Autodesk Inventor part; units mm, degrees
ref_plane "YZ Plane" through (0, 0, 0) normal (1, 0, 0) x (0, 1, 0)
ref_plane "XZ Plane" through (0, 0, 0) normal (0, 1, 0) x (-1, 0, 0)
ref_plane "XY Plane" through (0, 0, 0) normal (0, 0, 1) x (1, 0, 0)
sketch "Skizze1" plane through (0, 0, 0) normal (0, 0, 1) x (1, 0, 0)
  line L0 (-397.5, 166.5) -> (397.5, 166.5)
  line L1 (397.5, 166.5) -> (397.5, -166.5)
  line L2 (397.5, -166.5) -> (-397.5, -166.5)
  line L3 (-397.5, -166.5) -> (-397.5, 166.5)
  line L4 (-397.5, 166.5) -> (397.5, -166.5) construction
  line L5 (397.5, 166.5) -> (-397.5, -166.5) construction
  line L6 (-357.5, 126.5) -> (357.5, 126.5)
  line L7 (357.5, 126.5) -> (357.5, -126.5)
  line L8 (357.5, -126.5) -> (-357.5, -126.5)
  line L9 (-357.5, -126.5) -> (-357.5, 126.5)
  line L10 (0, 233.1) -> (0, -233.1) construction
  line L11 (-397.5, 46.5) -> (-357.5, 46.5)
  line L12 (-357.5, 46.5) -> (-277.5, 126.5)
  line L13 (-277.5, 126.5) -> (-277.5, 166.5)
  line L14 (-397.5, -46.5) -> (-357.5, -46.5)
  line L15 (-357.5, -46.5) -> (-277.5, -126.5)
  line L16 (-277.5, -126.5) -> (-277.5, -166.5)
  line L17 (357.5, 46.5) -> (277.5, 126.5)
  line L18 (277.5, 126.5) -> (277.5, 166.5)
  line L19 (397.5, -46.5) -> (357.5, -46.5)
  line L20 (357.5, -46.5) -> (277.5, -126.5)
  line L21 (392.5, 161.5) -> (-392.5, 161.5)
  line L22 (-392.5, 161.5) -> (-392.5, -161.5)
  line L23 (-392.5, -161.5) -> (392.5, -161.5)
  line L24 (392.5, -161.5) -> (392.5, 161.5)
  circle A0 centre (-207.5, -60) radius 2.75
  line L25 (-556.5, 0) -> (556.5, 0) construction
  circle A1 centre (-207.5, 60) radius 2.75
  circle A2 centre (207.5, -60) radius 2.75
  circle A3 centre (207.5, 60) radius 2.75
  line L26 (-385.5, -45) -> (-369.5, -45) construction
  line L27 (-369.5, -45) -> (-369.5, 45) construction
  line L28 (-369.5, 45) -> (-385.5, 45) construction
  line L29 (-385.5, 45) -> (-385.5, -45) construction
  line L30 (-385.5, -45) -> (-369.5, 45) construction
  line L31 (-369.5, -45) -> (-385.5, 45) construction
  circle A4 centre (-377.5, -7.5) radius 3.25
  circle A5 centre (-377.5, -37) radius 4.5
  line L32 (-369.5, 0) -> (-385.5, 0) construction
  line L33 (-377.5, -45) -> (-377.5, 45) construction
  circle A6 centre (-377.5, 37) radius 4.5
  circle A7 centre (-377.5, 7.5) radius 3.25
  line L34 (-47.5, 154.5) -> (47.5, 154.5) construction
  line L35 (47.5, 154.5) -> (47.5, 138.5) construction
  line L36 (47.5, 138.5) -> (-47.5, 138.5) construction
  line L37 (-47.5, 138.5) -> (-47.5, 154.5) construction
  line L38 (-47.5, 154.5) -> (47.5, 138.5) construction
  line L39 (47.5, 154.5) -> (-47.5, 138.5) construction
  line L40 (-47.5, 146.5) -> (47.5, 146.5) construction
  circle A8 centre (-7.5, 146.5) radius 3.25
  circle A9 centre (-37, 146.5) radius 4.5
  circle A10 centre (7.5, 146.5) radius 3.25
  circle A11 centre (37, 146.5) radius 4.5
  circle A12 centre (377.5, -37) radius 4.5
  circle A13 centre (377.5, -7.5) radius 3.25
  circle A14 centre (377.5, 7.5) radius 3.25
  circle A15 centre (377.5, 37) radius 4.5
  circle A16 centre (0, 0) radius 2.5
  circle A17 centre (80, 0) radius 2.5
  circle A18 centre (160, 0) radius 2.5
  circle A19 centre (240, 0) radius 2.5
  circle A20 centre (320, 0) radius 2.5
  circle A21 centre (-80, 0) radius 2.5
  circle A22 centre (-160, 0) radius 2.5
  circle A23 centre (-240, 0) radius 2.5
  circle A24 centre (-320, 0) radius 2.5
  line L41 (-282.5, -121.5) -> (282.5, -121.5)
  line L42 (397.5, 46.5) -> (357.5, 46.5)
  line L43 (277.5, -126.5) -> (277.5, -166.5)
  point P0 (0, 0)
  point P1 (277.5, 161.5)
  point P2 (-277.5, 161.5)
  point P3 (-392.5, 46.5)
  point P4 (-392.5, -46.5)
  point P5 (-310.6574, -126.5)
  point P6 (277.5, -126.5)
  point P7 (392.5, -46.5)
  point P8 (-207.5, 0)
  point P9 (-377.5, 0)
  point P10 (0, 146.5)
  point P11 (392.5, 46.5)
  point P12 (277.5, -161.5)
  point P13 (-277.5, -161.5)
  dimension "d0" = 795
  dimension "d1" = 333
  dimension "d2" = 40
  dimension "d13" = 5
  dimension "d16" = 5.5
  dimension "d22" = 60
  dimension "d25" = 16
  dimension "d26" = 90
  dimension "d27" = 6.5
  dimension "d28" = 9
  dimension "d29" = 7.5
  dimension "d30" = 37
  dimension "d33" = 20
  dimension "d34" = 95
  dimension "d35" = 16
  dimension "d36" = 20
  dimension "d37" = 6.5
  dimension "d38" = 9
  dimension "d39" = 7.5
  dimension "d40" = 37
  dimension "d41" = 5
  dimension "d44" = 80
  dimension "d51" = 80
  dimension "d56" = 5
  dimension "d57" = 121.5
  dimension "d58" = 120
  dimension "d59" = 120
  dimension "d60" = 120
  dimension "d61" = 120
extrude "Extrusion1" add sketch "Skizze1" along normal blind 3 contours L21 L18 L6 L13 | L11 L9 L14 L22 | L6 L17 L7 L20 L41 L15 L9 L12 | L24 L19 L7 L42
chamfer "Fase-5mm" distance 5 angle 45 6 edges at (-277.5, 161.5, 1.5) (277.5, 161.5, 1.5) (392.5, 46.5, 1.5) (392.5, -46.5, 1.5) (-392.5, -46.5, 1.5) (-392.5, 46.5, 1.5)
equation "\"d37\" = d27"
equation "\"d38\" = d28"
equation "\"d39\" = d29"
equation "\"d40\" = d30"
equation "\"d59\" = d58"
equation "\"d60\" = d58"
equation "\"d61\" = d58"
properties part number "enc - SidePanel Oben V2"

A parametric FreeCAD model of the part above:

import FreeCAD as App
import Part
import Sketcher


def edges_at(feature, points):
    """Names of the edges that pass closest to the given points."""
    edges = feature.Shape.Edges
    near = lambda p: min(range(len(edges)), key=lambda i: edges[i].distToShape(Part.Vertex(*p))[0])
    return sorted({f"Edge{near(p) + 1}" for p in points})

doc = App.newDocument("Part")
params = doc.addObject("Spreadsheet::Sheet", "Params")
for row, (alias, value) in enumerate([
    ("sketch1_diameter", "9 mm"),
    ("sketch1_diameter2", "5 mm"),
    ("sketch1_diameter3", "6.5 mm"),
    ("sketch1_diameter4", "5.5 mm"),
    ("sketch1_width", "555 mm"),
    ("pad1_length", "3 mm"),
    ("chamfer_size", "5 mm"),
], start=1):
    params.set(f"A{row}", alias)
    params.set(f"B{row}", "=" + value)
    params.setAlias(f"B{row}", alias)

body = doc.addObject("PartDesign::Body", "Body")

# Sketch on XY plane
sketch1 = doc.addObject("Sketcher::SketchObject", "Sketch")
body.addObject(sketch1)
sketch1.AttachmentSupport = (doc.XY_Plane, [""])
sketch1.MapMode = "FlatFace"
sketch1.addGeometry(Part.LineSegment(App.Vector(277.5, 161.5, 0), App.Vector(-277.5, 161.5, 0)), False)
sketch1.addGeometry(Part.LineSegment(App.Vector(-277.5, 161.5, 0), App.Vector(-277.5, 126.5, 0)), False)
sketch1.addGeometry(Part.LineSegment(App.Vector(-277.5, 126.5, 0), App.Vector(-357.5, 46.5, 0)), False)
sketch1.addGeometry(Part.LineSegment(App.Vector(-357.5, 46.5, 0), App.Vector(-392.5, 46.5, 0)), False)
sketch1.addGeometry(Part.LineSegment(App.Vector(-392.5, 46.5, 0), App.Vector(-392.5, -46.5, 0)), False)
sketch1.addGeometry(Part.LineSegment(App.Vector(-392.5, -46.5, 0), App.Vector(-357.5, -46.5, 0)), False)
sketch1.addGeometry(Part.LineSegment(App.Vector(-357.5, -46.5, 0), App.Vector(-282.5, -121.5, 0)), False)
sketch1.addGeometry(Part.LineSegment(App.Vector(-282.5, -121.5, 0), App.Vector(282.5, -121.5, 0)), False)
sketch1.addGeometry(Part.LineSegment(App.Vector(282.5, -121.5, 0), App.Vector(357.5, -46.5, 0)), False)
sketch1.addGeometry(Part.LineSegment(App.Vector(357.5, -46.5, 0), App.Vector(392.5, -46.5, 0)), False)
sketch1.addGeometry(Part.LineSegment(App.Vector(392.5, -46.5, 0), App.Vector(392.5, 46.5, 0)), False)
sketch1.addGeometry(Part.LineSegment(App.Vector(392.5, 46.5, 0), App.Vector(357.5, 46.5, 0)), False)
sketch1.addGeometry(Part.LineSegment(App.Vector(357.5, 46.5, 0), App.Vector(277.5, 126.5, 0)), False)
sketch1.addGeometry(Part.LineSegment(App.Vector(277.5, 126.5, 0), App.Vector(277.5, 161.5, 0)), False)
sketch1.addGeometry(Part.Circle(App.Vector(-37, 146.5, 0), App.Vector(0, 0, 1), 4.5), False)
sketch1.addGeometry(Part.Circle(App.Vector(-7.5, 146.5, 0), App.Vector(0, 0, 1), 3.25), False)
sketch1.addGeometry(Part.Circle(App.Vector(7.5, 146.5, 0), App.Vector(0, 0, 1), 3.25), False)
sketch1.addGeometry(Part.Circle(App.Vector(37, 146.5, 0), App.Vector(0, 0, 1), 4.5), False)
sketch1.addGeometry(Part.Circle(App.Vector(207.5, 60, 0), App.Vector(0, 0, 1), 2.75), False)
sketch1.addGeometry(Part.Circle(App.Vector(-207.5, -60, 0), App.Vector(0, 0, 1), 2.75), False)
sketch1.addGeometry(Part.Circle(App.Vector(207.5, -60, 0), App.Vector(0, 0, 1), 2.75), False)
sketch1.addGeometry(Part.Circle(App.Vector(-320, 0, 0), App.Vector(0, 0, 1), 2.5), False)
sketch1.addGeometry(Part.Circle(App.Vector(-240, 0, 0), App.Vector(0, 0, 1), 2.5), False)
sketch1.addGeometry(Part.Circle(App.Vector(-207.5, 60, 0), App.Vector(0, 0, 1), 2.75), False)
sketch1.addGeometry(Part.Circle(App.Vector(-160, 0, 0), App.Vector(0, 0, 1), 2.5), False)
sketch1.addGeometry(Part.Circle(App.Vector(-80, 0, 0), App.Vector(0, 0, 1), 2.5), False)
sketch1.addGeometry(Part.Circle(App.Vector(0, 0, 0), App.Vector(0, 0, 1), 2.5), False)
sketch1.addGeometry(Part.Circle(App.Vector(80, 0, 0), App.Vector(0, 0, 1), 2.5), False)
sketch1.addGeometry(Part.Circle(App.Vector(160, 0, 0), App.Vector(0, 0, 1), 2.5), False)
sketch1.addGeometry(Part.Circle(App.Vector(240, 0, 0), App.Vector(0, 0, 1), 2.5), False)
sketch1.addGeometry(Part.Circle(App.Vector(320, 0, 0), App.Vector(0, 0, 1), 2.5), False)
sketch1.addGeometry(Part.Circle(App.Vector(377.5, 37, 0), App.Vector(0, 0, 1), 4.5), False)
sketch1.addGeometry(Part.Circle(App.Vector(377.5, -37, 0), App.Vector(0, 0, 1), 4.5), False)
sketch1.addGeometry(Part.Circle(App.Vector(377.5, -7.5, 0), App.Vector(0, 0, 1), 3.25), False)
sketch1.addGeometry(Part.Circle(App.Vector(377.5, 7.5, 0), App.Vector(0, 0, 1), 3.25), False)
sketch1.addGeometry(Part.Circle(App.Vector(-377.5, 37, 0), App.Vector(0, 0, 1), 4.5), False)
sketch1.addGeometry(Part.Circle(App.Vector(-377.5, -37, 0), App.Vector(0, 0, 1), 4.5), False)
sketch1.addGeometry(Part.Circle(App.Vector(-377.5, -7.5, 0), App.Vector(0, 0, 1), 3.25), False)
sketch1.addGeometry(Part.Circle(App.Vector(-377.5, 7.5, 0), App.Vector(0, 0, 1), 3.25), False)
sketch1.addConstraint(Sketcher.Constraint("Coincident", 0, 2, 1, 1))
sketch1.addConstraint(Sketcher.Constraint("Coincident", 1, 2, 2, 1))
sketch1.addConstraint(Sketcher.Constraint("Coincident", 2, 2, 3, 1))
sketch1.addConstraint(Sketcher.Constraint("Coincident", 3, 2, 4, 1))
sketch1.addConstraint(Sketcher.Constraint("Coincident", 4, 2, 5, 1))
sketch1.addConstraint(Sketcher.Constraint("Coincident", 5, 2, 6, 1))
sketch1.addConstraint(Sketcher.Constraint("Coincident", 6, 2, 7, 1))
sketch1.addConstraint(Sketcher.Constraint("Coincident", 7, 2, 8, 1))
sketch1.addConstraint(Sketcher.Constraint("Coincident", 8, 2, 9, 1))
sketch1.addConstraint(Sketcher.Constraint("Coincident", 9, 2, 10, 1))
sketch1.addConstraint(Sketcher.Constraint("Coincident", 10, 2, 11, 1))
sketch1.addConstraint(Sketcher.Constraint("Coincident", 11, 2, 12, 1))
sketch1.addConstraint(Sketcher.Constraint("Coincident", 12, 2, 13, 1))
sketch1.addConstraint(Sketcher.Constraint("Coincident", 13, 2, 0, 1))
sketch1.addConstraint(Sketcher.Constraint("Horizontal", 0))
sketch1.addConstraint(Sketcher.Constraint("Vertical", 1))
sketch1.addConstraint(Sketcher.Constraint("Horizontal", 3))
sketch1.addConstraint(Sketcher.Constraint("Vertical", 4))
sketch1.addConstraint(Sketcher.Constraint("Horizontal", 5))
sketch1.addConstraint(Sketcher.Constraint("Horizontal", 7))
sketch1.addConstraint(Sketcher.Constraint("Horizontal", 9))
sketch1.addConstraint(Sketcher.Constraint("Vertical", 10))
sketch1.addConstraint(Sketcher.Constraint("Horizontal", 11))
sketch1.addConstraint(Sketcher.Constraint("Vertical", 13))
sketch1.addConstraint(Sketcher.Constraint("Coincident", 26, 3, -1, 1))
sketch1.addConstraint(Sketcher.Constraint("Equal", 15, 16))
sketch1.addConstraint(Sketcher.Constraint("Equal", 14, 17))
sketch1.addConstraint(Sketcher.Constraint("Equal", 18, 19))
sketch1.addConstraint(Sketcher.Constraint("Equal", 19, 20))
sketch1.addConstraint(Sketcher.Constraint("Equal", 21, 22))
sketch1.addConstraint(Sketcher.Constraint("Equal", 20, 23))
sketch1.addConstraint(Sketcher.Constraint("Equal", 22, 24))
sketch1.addConstraint(Sketcher.Constraint("Equal", 24, 25))
sketch1.addConstraint(Sketcher.Constraint("Equal", 25, 26))
sketch1.addConstraint(Sketcher.Constraint("Equal", 26, 27))
sketch1.addConstraint(Sketcher.Constraint("Equal", 27, 28))
sketch1.addConstraint(Sketcher.Constraint("Equal", 28, 29))
sketch1.addConstraint(Sketcher.Constraint("Equal", 29, 30))
sketch1.addConstraint(Sketcher.Constraint("Equal", 17, 31))
sketch1.addConstraint(Sketcher.Constraint("Equal", 31, 32))
sketch1.addConstraint(Sketcher.Constraint("Equal", 16, 33))
sketch1.addConstraint(Sketcher.Constraint("Equal", 33, 34))
sketch1.addConstraint(Sketcher.Constraint("Equal", 32, 35))
sketch1.addConstraint(Sketcher.Constraint("Equal", 35, 36))
sketch1.addConstraint(Sketcher.Constraint("Equal", 34, 37))
sketch1.addConstraint(Sketcher.Constraint("Equal", 37, 38))
sketch1.addConstraint(Sketcher.Constraint("Symmetric", 18, 3, 19, 3, -1, 1))
sketch1.addConstraint(Sketcher.Constraint("Symmetric", 20, 3, 23, 3, -1, 1))
sketch1.addConstraint(Sketcher.Constraint("Symmetric", 25, 3, 27, 3, -1, 1))
sketch1.addConstraint(Sketcher.Constraint("Symmetric", 24, 3, 28, 3, -1, 1))
sketch1.addConstraint(Sketcher.Constraint("Symmetric", 22, 3, 29, 3, -1, 1))
sketch1.addConstraint(Sketcher.Constraint("Symmetric", 21, 3, 30, 3, -1, 1))
sketch1.addConstraint(Sketcher.Constraint("Symmetric", 32, 3, 35, 3, -1, 1))
sketch1.addConstraint(Sketcher.Constraint("Symmetric", 31, 3, 36, 3, -1, 1))
sketch1.addConstraint(Sketcher.Constraint("Symmetric", 34, 3, 37, 3, -1, 1))
sketch1.addConstraint(Sketcher.Constraint("Symmetric", 33, 3, 38, 3, -1, 1))
sketch1.addConstraint(Sketcher.Constraint("Symmetric", 2, 2, 8, 2, -1, 1))
sketch1.addConstraint(Sketcher.Constraint("Symmetric", 4, 2, 10, 2, -1, 1))
sketch1.addConstraint(Sketcher.Constraint("Symmetric", 15, 3, 16, 3, -2))
sketch1.addConstraint(Sketcher.Constraint("Symmetric", 14, 3, 17, 3, -2))
sketch1.addConstraint(Sketcher.Constraint("Symmetric", 19, 3, 20, 3, -2))
sketch1.addConstraint(Sketcher.Constraint("Symmetric", 31, 3, 35, 3, -2))
sketch1.addConstraint(Sketcher.Constraint("Symmetric", 33, 3, 37, 3, -2))
sketch1.addConstraint(Sketcher.Constraint("Symmetric", 5, 2, 8, 2, -2))
sketch1.addConstraint(Sketcher.Constraint("Symmetric", 1, 2, 12, 2, -2))
sketch1.addConstraint(Sketcher.Constraint("PointOnObject", 21, 3, -1))
sketch1.addConstraint(Sketcher.Constraint("PointOnObject", 22, 3, -1))
sketch1.addConstraint(Sketcher.Constraint("PointOnObject", 24, 3, -1))
sketch1.addConstraint(Sketcher.Constraint("PointOnObject", 25, 3, -1))
sketch1.addConstraint(Sketcher.Constraint("Perpendicular", 2, 6))
sketch1.addConstraint(Sketcher.Constraint("Perpendicular", 6, 8))
sketch1.addConstraint(Sketcher.Constraint("Perpendicular", 8, 12))
sketch1.addConstraint(Sketcher.Constraint("Horizontal", 14, 3, 15, 3))
sketch1.addConstraint(Sketcher.Constraint("Vertical", 32, 3, 33, 3))
sketch1.addConstraint(Sketcher.Constraint("Vertical", 8, 2, 11, 2))
sketch1.addConstraint(Sketcher.Constraint("Equal", 11, 1))
sketch1.addConstraint(Sketcher.Constraint("Diameter", 14, 9.0))
sketch1.addConstraint(Sketcher.Constraint("Diameter", 21, 5.0))
sketch1.addConstraint(Sketcher.Constraint("Diameter", 15, 6.5))
sketch1.addConstraint(Sketcher.Constraint("Diameter", 18, 5.5))
sketch1.addConstraint(Sketcher.Constraint("DistanceX", 14, 3, -1, 1, 37.0))
sketch1.addConstraint(Sketcher.Constraint("DistanceY", -1, 1, 18, 3, 60.0))
sketch1.addConstraint(Sketcher.Constraint("DistanceX", 25, 3, -1, 1, 80.0))
sketch1.addConstraint(Sketcher.Constraint("DistanceY", -1, 1, 31, 3, 37.0))
sketch1.addConstraint(Sketcher.Constraint("DistanceX", 21, 3, 22, 3, 80.0))
sketch1.addConstraint(Sketcher.Constraint("DistanceX", 22, 3, 24, 3, 80.0))
sketch1.addConstraint(Sketcher.Constraint("DistanceX", 24, 3, 25, 3, 80.0))
sketch1.addConstraint(Sketcher.Constraint("DistanceX", 35, 3, 2, 2, 20.0))
sketch1.addConstraint(Sketcher.Constraint("DistanceX", 36, 3, 6, 2, 95.0))
sketch1.addConstraint(Sketcher.Constraint("DistanceX", 12, 2, 11, 2, 80.0))
sketch1.addConstraint(Sketcher.Constraint("DistanceX", 15, 3, -1, 1, 7.5))
sketch1.addConstraint(Sketcher.Constraint("DistanceY", 33, 3, -1, 1, 7.5))
sketch1.addConstraint(Sketcher.Constraint("DistanceY", 6, 2, -1, 1, 121.5))
sketch1.addConstraint(Sketcher.Constraint("DistanceX", 0, 2, 0, 1, 555.0))
sketch1.addConstraint(Sketcher.Constraint("DistanceX", 3, 2, 3, 1, 35.0))
sketch1.addConstraint(Sketcher.Constraint("DistanceX", 16, 3, 18, 3, 200.0))
sketch1.addConstraint(Sketcher.Constraint("DistanceY", -1, 1, 14, 3, 146.5))
sketch1.setExpression("Constraints[76]", "Params.sketch1_diameter")
sketch1.setExpression("Constraints[77]", "Params.sketch1_diameter2")
sketch1.setExpression("Constraints[78]", "Params.sketch1_diameter3")
sketch1.setExpression("Constraints[79]", "Params.sketch1_diameter4")
sketch1.setExpression("Constraints[93]", "Params.sketch1_width")
pad1 = doc.addObject("PartDesign::Pad", "Pad")
body.addObject(pad1)
pad1.Profile = sketch1
pad1.setExpression("Length", "Params.pad1_length")
doc.recompute()

chamfer = doc.addObject("PartDesign::Chamfer", "Chamfer")
body.addObject(chamfer)
chamfer.Base = (pad1, edges_at(pad1, [
    (-277.5, 161.5, 1.5),
    (277.5, 161.5, 1.5),
    (392.5, 46.5, 1.5),
    (392.5, -46.5, 1.5),
    (-392.5, -46.5, 1.5),
    (-392.5, 46.5, 1.5),
]))
chamfer.setExpression("Size", "Params.chamfer_size")

doc.recompute()
